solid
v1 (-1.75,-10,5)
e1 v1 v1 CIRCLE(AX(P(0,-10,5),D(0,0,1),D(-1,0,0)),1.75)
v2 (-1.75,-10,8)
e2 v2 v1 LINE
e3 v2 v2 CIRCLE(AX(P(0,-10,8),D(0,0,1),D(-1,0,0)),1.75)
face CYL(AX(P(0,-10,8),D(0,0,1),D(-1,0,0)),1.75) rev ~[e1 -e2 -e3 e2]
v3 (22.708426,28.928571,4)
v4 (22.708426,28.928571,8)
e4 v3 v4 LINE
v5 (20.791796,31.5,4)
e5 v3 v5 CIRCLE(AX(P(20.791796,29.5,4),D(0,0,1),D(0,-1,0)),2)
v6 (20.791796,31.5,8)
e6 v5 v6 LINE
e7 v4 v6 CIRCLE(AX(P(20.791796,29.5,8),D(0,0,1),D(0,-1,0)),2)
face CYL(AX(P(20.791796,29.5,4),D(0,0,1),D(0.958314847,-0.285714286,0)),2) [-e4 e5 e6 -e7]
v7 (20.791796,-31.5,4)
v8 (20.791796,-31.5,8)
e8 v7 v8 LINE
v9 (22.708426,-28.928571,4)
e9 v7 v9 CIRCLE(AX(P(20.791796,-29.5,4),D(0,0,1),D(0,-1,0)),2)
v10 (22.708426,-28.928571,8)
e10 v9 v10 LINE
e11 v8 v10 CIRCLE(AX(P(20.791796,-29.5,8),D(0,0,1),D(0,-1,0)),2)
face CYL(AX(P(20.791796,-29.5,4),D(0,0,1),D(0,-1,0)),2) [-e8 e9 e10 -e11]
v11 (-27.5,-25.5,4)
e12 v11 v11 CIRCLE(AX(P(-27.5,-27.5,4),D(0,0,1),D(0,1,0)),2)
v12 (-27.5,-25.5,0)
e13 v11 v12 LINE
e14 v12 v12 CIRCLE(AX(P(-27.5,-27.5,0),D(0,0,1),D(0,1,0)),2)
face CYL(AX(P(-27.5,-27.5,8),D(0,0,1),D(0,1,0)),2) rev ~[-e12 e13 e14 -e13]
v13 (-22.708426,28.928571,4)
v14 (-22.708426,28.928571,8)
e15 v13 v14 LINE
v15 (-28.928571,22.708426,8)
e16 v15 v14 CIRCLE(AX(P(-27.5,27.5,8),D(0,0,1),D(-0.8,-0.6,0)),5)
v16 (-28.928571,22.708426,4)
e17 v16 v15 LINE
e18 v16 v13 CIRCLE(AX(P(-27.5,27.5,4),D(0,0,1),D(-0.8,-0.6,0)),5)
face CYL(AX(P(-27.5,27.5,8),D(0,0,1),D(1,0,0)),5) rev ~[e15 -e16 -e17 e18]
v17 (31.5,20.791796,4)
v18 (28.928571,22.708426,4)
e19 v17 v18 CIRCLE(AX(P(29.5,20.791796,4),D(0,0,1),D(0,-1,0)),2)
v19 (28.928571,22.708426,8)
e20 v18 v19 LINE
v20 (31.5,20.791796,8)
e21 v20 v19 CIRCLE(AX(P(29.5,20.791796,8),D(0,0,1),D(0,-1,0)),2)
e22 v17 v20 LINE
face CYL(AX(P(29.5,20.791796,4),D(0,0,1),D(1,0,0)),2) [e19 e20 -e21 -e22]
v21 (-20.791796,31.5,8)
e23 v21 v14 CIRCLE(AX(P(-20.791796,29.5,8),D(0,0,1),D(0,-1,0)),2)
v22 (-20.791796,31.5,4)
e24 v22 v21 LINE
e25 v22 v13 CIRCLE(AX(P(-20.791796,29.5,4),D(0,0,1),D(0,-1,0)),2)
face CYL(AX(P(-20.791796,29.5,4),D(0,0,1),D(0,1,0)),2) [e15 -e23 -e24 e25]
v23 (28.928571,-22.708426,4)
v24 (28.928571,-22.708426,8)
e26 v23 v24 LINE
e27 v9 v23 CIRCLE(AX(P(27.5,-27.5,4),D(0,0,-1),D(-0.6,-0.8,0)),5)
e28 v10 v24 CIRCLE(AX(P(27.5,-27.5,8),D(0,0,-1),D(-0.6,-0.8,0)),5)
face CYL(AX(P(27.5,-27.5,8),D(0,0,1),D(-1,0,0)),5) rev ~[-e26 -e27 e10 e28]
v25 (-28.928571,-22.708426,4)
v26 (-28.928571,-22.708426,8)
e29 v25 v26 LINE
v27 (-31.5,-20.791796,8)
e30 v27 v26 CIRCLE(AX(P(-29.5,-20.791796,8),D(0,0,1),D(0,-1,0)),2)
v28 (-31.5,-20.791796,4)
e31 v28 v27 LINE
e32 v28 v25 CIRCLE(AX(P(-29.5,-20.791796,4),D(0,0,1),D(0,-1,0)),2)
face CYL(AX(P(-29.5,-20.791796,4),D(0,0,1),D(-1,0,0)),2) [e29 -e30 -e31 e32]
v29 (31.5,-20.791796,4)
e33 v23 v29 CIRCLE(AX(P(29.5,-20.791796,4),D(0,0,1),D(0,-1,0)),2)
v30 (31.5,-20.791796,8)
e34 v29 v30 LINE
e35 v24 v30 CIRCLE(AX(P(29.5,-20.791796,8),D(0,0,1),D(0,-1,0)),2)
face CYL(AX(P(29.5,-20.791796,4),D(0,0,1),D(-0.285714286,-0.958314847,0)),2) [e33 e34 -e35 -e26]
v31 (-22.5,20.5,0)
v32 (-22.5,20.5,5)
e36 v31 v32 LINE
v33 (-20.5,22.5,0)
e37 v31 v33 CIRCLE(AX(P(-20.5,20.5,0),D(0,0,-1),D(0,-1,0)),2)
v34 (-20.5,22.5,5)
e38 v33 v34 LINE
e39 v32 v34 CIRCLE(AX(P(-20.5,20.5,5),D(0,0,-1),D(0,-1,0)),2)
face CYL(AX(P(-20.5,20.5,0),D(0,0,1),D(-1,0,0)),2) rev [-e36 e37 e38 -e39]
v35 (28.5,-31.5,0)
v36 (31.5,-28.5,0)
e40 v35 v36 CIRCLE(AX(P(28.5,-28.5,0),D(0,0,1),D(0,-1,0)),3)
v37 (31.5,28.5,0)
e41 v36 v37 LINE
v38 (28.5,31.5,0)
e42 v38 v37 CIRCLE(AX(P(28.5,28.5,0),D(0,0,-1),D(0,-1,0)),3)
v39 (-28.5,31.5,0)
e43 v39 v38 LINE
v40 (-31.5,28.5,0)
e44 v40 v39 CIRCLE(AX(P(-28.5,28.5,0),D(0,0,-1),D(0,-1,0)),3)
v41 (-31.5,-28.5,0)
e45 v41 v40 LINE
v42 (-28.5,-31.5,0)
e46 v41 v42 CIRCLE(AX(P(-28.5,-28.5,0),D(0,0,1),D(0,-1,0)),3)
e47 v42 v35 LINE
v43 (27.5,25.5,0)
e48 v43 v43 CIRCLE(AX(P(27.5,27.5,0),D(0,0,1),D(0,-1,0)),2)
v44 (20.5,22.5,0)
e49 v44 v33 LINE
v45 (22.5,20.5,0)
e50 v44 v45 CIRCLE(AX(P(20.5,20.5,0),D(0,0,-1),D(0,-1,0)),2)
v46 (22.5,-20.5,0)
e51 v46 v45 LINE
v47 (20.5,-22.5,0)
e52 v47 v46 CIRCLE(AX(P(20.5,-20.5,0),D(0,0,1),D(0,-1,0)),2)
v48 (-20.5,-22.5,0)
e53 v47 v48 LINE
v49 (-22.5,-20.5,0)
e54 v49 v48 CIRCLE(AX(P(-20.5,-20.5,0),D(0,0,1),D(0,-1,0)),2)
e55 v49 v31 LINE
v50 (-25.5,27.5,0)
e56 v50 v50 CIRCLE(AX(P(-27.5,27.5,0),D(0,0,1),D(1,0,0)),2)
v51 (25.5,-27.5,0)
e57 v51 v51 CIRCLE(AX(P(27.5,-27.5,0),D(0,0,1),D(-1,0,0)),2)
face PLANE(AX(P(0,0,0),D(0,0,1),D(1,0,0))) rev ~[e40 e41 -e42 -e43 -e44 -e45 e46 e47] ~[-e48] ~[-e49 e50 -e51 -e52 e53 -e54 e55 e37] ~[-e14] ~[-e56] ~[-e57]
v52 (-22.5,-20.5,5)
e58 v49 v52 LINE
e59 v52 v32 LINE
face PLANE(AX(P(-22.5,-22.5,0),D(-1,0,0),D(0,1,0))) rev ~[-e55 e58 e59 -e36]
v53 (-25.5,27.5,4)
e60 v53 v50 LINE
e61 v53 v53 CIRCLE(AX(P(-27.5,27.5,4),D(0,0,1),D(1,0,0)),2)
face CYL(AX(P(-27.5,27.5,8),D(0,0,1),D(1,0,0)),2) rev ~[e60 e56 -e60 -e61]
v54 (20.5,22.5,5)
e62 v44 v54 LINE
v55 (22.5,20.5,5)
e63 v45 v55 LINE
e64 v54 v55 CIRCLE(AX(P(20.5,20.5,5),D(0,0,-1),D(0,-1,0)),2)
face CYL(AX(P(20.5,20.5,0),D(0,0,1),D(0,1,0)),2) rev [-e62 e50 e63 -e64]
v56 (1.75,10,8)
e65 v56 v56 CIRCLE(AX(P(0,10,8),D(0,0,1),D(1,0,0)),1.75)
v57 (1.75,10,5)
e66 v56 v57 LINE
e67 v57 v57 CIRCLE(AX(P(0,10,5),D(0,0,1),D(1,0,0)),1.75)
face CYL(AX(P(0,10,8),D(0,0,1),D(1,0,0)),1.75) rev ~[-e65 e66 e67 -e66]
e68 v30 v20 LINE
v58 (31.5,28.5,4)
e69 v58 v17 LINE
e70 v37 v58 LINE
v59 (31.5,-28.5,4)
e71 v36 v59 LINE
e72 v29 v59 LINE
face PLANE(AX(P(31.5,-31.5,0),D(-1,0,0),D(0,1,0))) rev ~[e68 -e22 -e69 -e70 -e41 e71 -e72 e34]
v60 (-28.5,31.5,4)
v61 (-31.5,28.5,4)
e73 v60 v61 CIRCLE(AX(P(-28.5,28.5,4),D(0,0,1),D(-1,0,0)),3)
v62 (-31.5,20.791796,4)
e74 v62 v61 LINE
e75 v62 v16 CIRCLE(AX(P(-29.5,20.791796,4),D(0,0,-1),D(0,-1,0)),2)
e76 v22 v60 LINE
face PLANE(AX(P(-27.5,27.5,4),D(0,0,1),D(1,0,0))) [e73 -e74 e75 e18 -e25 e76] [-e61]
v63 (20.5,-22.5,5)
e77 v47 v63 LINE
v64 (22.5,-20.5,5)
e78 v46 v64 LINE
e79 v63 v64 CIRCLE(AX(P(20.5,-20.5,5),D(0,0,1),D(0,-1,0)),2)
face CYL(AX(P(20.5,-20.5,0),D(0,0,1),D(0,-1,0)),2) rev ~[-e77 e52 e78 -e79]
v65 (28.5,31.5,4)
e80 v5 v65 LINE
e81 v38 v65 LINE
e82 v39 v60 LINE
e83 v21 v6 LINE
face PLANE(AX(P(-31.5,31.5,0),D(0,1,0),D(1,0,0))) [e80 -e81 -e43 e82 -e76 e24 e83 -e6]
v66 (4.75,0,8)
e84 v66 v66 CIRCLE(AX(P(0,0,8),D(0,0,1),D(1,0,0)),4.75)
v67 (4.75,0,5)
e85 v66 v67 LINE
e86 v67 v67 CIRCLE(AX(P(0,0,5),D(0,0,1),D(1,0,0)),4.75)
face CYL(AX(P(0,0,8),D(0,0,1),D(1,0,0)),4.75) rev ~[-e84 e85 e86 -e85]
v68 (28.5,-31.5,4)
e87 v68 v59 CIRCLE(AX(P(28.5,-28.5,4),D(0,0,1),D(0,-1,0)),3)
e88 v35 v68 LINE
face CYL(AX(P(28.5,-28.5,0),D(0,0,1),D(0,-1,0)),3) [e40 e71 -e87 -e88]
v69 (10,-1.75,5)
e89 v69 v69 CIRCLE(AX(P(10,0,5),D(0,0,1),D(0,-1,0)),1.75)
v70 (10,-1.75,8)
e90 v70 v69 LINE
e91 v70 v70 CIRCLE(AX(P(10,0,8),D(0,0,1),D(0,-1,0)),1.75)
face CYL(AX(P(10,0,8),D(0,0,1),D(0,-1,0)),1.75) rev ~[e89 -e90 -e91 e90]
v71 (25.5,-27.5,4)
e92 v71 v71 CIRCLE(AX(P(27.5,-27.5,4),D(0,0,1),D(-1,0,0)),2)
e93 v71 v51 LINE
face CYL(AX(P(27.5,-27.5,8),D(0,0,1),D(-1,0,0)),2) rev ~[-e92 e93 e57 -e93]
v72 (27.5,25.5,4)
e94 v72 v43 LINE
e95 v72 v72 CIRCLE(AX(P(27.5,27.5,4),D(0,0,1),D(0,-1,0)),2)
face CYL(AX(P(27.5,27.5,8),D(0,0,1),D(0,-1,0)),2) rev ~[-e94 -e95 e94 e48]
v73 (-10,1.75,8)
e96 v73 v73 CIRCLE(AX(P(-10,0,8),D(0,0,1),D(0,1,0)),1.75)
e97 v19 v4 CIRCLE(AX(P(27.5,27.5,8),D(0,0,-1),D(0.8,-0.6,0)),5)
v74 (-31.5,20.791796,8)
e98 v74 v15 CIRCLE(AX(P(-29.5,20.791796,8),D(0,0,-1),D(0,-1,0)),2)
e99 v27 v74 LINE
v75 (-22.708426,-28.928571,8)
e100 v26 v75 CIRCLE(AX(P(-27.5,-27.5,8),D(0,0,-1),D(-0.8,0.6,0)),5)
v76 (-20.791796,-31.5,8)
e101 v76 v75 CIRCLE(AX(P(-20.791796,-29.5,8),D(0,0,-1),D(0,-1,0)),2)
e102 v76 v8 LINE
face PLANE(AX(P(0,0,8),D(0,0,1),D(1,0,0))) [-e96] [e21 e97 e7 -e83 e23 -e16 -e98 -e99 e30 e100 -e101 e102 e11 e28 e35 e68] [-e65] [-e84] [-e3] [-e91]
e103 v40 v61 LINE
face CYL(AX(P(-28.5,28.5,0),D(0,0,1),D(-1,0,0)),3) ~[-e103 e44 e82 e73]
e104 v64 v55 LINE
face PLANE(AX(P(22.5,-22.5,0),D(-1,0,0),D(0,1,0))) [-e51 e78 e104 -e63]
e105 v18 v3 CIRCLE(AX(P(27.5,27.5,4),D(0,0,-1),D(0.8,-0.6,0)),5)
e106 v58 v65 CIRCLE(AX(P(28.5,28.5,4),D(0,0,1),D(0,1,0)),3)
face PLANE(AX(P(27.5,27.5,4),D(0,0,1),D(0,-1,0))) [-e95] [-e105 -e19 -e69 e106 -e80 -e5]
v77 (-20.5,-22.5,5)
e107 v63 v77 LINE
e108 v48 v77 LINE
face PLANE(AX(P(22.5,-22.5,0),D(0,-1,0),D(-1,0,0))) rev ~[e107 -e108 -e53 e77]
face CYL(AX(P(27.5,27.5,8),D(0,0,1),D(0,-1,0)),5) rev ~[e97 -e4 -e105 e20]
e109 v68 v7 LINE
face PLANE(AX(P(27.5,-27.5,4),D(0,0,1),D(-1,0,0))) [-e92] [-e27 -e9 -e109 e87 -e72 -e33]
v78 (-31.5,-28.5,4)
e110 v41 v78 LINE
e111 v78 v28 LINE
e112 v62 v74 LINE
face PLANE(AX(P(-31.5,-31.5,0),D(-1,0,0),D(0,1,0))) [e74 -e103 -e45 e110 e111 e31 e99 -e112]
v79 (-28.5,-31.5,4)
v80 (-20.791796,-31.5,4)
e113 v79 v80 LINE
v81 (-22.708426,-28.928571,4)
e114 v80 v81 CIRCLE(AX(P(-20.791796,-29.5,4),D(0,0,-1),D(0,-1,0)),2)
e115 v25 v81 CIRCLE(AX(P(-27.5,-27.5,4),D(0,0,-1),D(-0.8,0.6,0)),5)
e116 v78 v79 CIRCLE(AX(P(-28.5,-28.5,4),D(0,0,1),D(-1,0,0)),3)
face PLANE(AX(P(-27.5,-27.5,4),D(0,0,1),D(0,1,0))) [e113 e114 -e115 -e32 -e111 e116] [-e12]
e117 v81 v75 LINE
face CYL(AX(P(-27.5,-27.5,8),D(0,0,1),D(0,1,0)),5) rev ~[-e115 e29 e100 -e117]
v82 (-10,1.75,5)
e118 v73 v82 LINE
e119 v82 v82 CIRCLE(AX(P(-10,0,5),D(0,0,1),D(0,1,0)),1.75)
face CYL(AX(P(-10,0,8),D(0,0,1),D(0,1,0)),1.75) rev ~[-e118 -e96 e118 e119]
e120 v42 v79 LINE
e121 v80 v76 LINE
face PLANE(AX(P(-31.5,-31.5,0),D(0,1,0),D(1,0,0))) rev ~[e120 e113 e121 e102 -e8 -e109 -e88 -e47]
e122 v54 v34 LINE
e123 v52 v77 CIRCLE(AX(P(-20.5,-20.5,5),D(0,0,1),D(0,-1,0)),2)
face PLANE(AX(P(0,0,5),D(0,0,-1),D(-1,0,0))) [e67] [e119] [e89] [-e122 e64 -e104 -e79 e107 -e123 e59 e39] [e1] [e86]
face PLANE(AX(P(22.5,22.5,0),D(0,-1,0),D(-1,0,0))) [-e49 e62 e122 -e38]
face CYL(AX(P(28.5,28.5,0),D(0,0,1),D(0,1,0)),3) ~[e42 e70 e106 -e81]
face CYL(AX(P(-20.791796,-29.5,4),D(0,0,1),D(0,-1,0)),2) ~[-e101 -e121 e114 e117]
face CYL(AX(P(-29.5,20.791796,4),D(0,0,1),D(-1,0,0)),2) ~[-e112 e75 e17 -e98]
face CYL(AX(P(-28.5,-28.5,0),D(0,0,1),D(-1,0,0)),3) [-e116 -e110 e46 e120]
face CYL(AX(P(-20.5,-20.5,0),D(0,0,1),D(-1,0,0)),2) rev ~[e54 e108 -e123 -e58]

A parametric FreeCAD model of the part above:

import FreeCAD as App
import Part
import Sketcher
from FreeCAD import Vector
Q = App.Units.Quantity


def edges_at(feature, points):
    """Names of the edges that pass closest to the given points."""
    edges = feature.Shape.Edges
    near = lambda p: min(range(len(edges)), key=lambda i: edges[i].distToShape(Part.Vertex(*p))[0])
    return sorted({f"Edge{near(p) + 1}" for p in points})

doc = App.newDocument("Part")
body = doc.addObject("PartDesign::Body", "Body")

# Sketch on XY plane
sketch1 = body.newObject("Sketcher::SketchObject", "Sketch")
sketch1.AttachmentSupport = (doc.getObject("XY_Plane"), [""])
sketch1.MapMode = "FlatFace"
sketch1.addGeometry([
    Part.LineSegment(Vector(-32, 32, 0), Vector(-32, -32, 0)),
    Part.LineSegment(Vector(-32, -32, 0), Vector(32, -32, 0)),
    Part.LineSegment(Vector(32, -32, 0), Vector(32, 32, 0)),
    Part.LineSegment(Vector(32, 32, 0), Vector(-32, 32, 0)),
], False)
sketch1.addConstraint([
    Sketcher.Constraint("Coincident", 0, 2, 1, 1),
    Sketcher.Constraint("Coincident", 1, 2, 2, 1),
    Sketcher.Constraint("Coincident", 2, 2, 3, 1),
    Sketcher.Constraint("Coincident", 3, 2, 0, 1),
    Sketcher.Constraint("Vertical", 0),
    Sketcher.Constraint("Horizontal", 1),
    Sketcher.Constraint("Vertical", 2),
    Sketcher.Constraint("Horizontal", 3),
    Sketcher.Constraint("Symmetric", 0, 2, 2, 2, -1, 1),
    Sketcher.Constraint("Equal", 3, 0),
    Sketcher.Constraint("DistanceX", 1, 1, 1, 2, Q("63 mm")),
])
pad1 = body.newObject("PartDesign::Pad", "Pad")
pad1.Profile = sketch1
pad1.Length = 8

# Sketch on XY plane
sketch2 = body.newObject("Sketcher::SketchObject", "Sketch001")
sketch2.AttachmentSupport = (doc.getObject("XY_Plane"), [""])
sketch2.MapMode = "FlatFace"
sketch2.addGeometry([
    Part.LineSegment(Vector(22, 22, 0), Vector(22, -22, 0)),
    Part.LineSegment(Vector(22, -22, 0), Vector(-22, -22, 0)),
    Part.LineSegment(Vector(-22, -22, 0), Vector(-22, 22, 0)),
    Part.LineSegment(Vector(-22, 22, 0), Vector(22, 22, 0)),
], False)
sketch2.addConstraint([
    Sketcher.Constraint("Coincident", 0, 2, 1, 1),
    Sketcher.Constraint("Coincident", 1, 2, 2, 1),
    Sketcher.Constraint("Coincident", 2, 2, 3, 1),
    Sketcher.Constraint("Coincident", 3, 2, 0, 1),
    Sketcher.Constraint("Vertical", 0),
    Sketcher.Constraint("Horizontal", 1),
    Sketcher.Constraint("Vertical", 2),
    Sketcher.Constraint("Horizontal", 3),
    Sketcher.Constraint("Symmetric", 0, 2, 2, 2, -1, 1),
    Sketcher.Constraint("Equal", 3, 0),
    Sketcher.Constraint("DistanceX", 1, 2, 1, 1, Q("45 mm")),
])
pocket1 = body.newObject("PartDesign::Pocket", "Pocket")
pocket1.Profile = sketch2
pocket1.Length = 5
pocket1.Reversed = True

# Sketch on XY plane
sketch3 = body.newObject("Sketcher::SketchObject", "Sketch002")
sketch3.AttachmentSupport = (doc.getObject("XY_Plane"), [""])
sketch3.MapMode = "FlatFace"
sketch3.AttachmentOffset = App.Placement(Vector(0, 0, 8), App.Rotation())
sketch3.addGeometry(Part.Circle(Vector(0, 0, 0), Vector(0, 0, 1), 4.8), False)
sketch3.addConstraint([
    Sketcher.Constraint("Coincident", 0, 3, -1, 1),
    Sketcher.Constraint("Diameter", 0, Q("9.5 mm")),
])
pocket2 = body.newObject("PartDesign::Pocket", "Pocket001")
pocket2.Profile = sketch3
pocket2.Length = 5

# Sketch on XY plane
sketch4 = body.newObject("Sketcher::SketchObject", "Sketch003")
sketch4.AttachmentSupport = (doc.getObject("XY_Plane"), [""])
sketch4.MapMode = "FlatFace"
sketch4.AttachmentOffset = App.Placement(Vector(0, 0, 8), App.Rotation())
sketch4.addGeometry(Part.Circle(Vector(0, 10, 0), Vector(0, 0, 1), 1.8), False)
sketch4.addConstraint([
    Sketcher.Constraint("PointOnObject", 0, 3, -2),
    Sketcher.Constraint("Diameter", 0, Q("3.5 mm")),
    Sketcher.Constraint("DistanceY", -1, 1, 0, 3, Q("10 mm")),
])
pocket3 = body.newObject("PartDesign::Pocket", "Pocket002")
pocket3.Profile = sketch4
pocket3.Length = 5
doc.recompute()

polarpattern = body.newObject("PartDesign::PolarPattern", "PolarPattern")
polarpattern.Originals = [pocket3]
polarpattern.Axis = (doc.getObject("Z_Axis"), [""])
polarpattern.Angle = 360
polarpattern.Occurrences = 4
body.Tip = polarpattern

# Sketch on XY plane
sketch5 = body.newObject("Sketcher::SketchObject", "Sketch004")
sketch5.AttachmentSupport = (doc.getObject("XY_Plane"), [""])
sketch5.MapMode = "FlatFace"
sketch5.AttachmentOffset = App.Placement(Vector(0, 0, 8), App.Rotation())
sketch5.addGeometry(Part.Circle(Vector(-27.5, 27.5, 0), Vector(0, 0, 1), 2), False)
sketch5.addConstraint([
    Sketcher.Constraint("Diameter", 0, Q("4 mm")),
    Sketcher.Constraint("DistanceX", 0, 3, -1, 1, Q("27.5 mm")),
    Sketcher.Constraint("DistanceY", -1, 1, 0, 3, Q("27.5 mm")),
])
pocket4 = body.newObject("PartDesign::Pocket", "Pocket003")
pocket4.Profile = sketch5
pocket4.Length = 15
doc.recompute()

polarpattern2 = body.newObject("PartDesign::PolarPattern", "PolarPattern001")
polarpattern2.Originals = [pocket4]
polarpattern2.Axis = (doc.getObject("Z_Axis"), [""])
polarpattern2.Angle = 360
polarpattern2.Occurrences = 4
body.Tip = polarpattern2
doc.recompute()

fillet = body.newObject("PartDesign::Fillet", "Fillet")
fillet.Base = (polarpattern2, edges_at(polarpattern2, [
    (-31.5, 31.5, 4),
    (31.5, 31.5, 4),
    (31.5, -31.5, 4),
    (-31.5, -31.5, 4),
]))
fillet.Radius = 3

# Sketch on XY plane
sketch6 = body.newObject("Sketcher::SketchObject", "Sketch005")
sketch6.AttachmentSupport = (doc.getObject("XY_Plane"), [""])
sketch6.MapMode = "FlatFace"
sketch6.AttachmentOffset = App.Placement(Vector(0, 0, 8), App.Rotation())
sketch6.addGeometry(Part.Circle(Vector(-28, 28, 0), Vector(0, 0, 1), 5), False)
sketch6.addConstraint([
    Sketcher.Constraint("Diameter", 0, Q("10 mm")),
    Sketcher.Constraint("DistanceX", 0, 3, -1, 1, Q("27.5 mm")),
    Sketcher.Constraint("DistanceY", -1, 1, 0, 3, Q("27.5 mm")),
])
pocket5 = body.newObject("PartDesign::Pocket", "Pocket004")
pocket5.Profile = sketch6
pocket5.Length = 4
doc.recompute()

polarpattern3 = body.newObject("PartDesign::PolarPattern", "PolarPattern002")
polarpattern3.Originals = [pocket5]
polarpattern3.Axis = (doc.getObject("Z_Axis"), [""])
polarpattern3.Angle = 360
polarpattern3.Occurrences = 4
body.Tip = polarpattern3
doc.recompute()

fillet2 = body.newObject("PartDesign::Fillet", "Fillet001")
fillet2.Base = (polarpattern3, edges_at(polarpattern3, [
    (-31.5, 24.5, 6),
    (-24.5, 31.5, 6),
    (31.5, 24.5, 6),
    (24.5, 31.5, 6),
    (24.5, -31.5, 6),
    (31.5, -24.5, 6),
    (-31.5, -24.5, 6),
    (-24.5, -31.5, 6),
]))
fillet2.Radius = 2
doc.recompute()

fillet3 = body.newObject("PartDesign::Fillet", "Fillet002")
fillet3.Base = (fillet2, edges_at(fillet2, [
    (22.5, -22.5, 2.5),
    (22.5, 22.5, 2.5),
    (-22.5, 22.5, 2.5),
    (-22.5, -22.5, 2.5),
]))
fillet3.Radius = 2

doc.recompute()
